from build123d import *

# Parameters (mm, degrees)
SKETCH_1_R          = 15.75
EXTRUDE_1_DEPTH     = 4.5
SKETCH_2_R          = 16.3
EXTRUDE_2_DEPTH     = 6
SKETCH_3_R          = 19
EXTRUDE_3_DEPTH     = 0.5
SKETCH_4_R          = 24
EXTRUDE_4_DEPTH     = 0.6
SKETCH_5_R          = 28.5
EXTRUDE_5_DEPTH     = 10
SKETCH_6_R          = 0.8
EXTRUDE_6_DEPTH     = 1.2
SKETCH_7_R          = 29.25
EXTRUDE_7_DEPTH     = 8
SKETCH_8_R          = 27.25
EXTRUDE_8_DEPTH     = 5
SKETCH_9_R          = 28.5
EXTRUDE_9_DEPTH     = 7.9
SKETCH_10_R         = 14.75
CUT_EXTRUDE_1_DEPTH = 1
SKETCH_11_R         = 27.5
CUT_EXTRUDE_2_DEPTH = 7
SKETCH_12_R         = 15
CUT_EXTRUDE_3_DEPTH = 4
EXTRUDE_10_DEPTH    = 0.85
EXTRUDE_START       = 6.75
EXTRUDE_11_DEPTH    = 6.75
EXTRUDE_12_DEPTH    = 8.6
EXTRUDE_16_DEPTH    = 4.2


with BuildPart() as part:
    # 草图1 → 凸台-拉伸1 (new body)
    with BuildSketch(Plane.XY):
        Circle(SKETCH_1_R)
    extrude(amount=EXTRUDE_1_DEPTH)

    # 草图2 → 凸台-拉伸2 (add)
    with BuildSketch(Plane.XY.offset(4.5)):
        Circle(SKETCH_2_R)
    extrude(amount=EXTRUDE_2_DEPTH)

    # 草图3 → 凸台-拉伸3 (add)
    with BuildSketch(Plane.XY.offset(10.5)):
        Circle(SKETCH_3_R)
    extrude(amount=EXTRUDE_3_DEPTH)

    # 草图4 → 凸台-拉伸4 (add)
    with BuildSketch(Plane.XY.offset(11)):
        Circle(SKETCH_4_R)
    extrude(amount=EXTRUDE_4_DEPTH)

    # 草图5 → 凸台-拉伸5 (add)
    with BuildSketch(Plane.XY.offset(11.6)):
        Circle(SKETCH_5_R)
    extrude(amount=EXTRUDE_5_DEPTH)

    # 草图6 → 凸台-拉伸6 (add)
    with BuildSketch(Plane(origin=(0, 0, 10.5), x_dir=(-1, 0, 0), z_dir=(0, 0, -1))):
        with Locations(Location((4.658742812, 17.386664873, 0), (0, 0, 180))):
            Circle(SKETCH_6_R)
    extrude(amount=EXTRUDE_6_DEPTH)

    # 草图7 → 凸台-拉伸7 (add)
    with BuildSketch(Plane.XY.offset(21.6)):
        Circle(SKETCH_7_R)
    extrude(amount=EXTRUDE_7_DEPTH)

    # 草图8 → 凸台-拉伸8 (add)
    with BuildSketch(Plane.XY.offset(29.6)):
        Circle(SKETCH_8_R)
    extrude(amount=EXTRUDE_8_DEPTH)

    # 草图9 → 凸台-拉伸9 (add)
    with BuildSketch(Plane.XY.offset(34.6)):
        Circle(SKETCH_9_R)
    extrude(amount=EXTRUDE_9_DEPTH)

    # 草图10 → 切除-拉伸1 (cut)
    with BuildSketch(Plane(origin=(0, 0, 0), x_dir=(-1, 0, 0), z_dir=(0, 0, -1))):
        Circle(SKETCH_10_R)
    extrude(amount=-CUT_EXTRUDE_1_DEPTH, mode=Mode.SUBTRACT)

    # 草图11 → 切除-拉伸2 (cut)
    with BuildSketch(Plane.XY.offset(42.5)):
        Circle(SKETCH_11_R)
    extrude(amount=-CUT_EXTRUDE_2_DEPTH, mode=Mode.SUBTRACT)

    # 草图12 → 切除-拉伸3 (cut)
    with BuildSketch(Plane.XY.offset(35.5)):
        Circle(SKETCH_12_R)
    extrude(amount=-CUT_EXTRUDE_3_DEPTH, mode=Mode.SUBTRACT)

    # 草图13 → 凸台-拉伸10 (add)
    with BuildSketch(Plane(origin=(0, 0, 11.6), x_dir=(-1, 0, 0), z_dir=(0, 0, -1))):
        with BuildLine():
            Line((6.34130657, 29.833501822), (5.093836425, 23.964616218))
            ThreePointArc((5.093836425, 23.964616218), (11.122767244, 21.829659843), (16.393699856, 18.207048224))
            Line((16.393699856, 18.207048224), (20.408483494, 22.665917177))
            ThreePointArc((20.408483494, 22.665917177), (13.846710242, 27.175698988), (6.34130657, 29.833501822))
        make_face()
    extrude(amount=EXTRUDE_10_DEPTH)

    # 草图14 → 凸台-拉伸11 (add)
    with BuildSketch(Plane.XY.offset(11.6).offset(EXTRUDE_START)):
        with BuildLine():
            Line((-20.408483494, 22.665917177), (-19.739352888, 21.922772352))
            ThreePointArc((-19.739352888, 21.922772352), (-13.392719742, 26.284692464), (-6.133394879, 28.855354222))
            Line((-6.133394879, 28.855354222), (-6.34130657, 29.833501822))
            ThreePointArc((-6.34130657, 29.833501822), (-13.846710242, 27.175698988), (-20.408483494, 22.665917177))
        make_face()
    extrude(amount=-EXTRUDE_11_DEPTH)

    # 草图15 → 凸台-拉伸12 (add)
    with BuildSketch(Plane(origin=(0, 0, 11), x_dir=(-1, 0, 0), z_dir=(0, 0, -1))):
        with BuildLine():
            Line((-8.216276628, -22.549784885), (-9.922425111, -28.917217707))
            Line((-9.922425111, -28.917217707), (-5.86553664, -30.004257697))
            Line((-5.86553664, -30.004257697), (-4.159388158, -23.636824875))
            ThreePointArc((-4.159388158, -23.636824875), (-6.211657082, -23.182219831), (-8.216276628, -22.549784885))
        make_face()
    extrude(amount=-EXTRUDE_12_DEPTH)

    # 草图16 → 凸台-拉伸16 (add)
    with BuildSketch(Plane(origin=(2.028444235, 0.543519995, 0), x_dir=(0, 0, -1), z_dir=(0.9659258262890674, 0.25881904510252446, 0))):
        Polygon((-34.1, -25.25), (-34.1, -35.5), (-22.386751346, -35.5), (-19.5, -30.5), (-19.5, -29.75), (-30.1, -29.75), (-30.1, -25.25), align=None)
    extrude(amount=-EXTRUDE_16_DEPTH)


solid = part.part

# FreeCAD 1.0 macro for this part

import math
import FreeCAD as App
import Part
import Sketcher
Q = App.Units.Quantity


def add_polygon(sketch, points):
    """Adds a closed chain of lines whose ends are joined by coincident constraints."""
    first, n = sketch.GeometryCount, len(points)
    for a, b in zip(points, points[1:] + points[:1]):
        sketch.addGeometry(Part.LineSegment(App.Vector(*a, 0), App.Vector(*b, 0)), False)
    for i in range(n):
        sketch.addConstraint(Sketcher.Constraint("Coincident", first + i, 2, first + (i + 1) % n, 1))

doc = App.newDocument("Part")
body = doc.addObject("PartDesign::Body", "Body")

# Sketch on XY plane
sketch1 = body.newObject("Sketcher::SketchObject", "Sketch")
sketch1.AttachmentSupport = (doc.getObject("XY_Plane"), [""])
sketch1.MapMode = "FlatFace"
sketch1.addGeometry(Part.Circle(App.Vector(0, 0, 0), App.Vector(0, 0, 1), 16), False)
sketch1.addConstraint(Sketcher.Constraint("Coincident", 0, 3, -1, 1))
sketch1.addConstraint(Sketcher.Constraint("Diameter", 0, 31.5))
pad1 = body.newObject("PartDesign::Pad", "Pad")
pad1.Profile = sketch1
pad1.Length = 4.5

# Sketch on XY plane
sketch2 = body.newObject("Sketcher::SketchObject", "Sketch001")
sketch2.AttachmentSupport = (doc.getObject("XY_Plane"), [""])
sketch2.MapMode = "FlatFace"
sketch2.AttachmentOffset = App.Placement(App.Vector(0, 0, 4.5), App.Rotation())
sketch2.addGeometry(Part.Circle(App.Vector(0, 0, 0), App.Vector(0, 0, 1), 16), False)
sketch2.addConstraint(Sketcher.Constraint("Coincident", 0, 3, -1, 1))
sketch2.addConstraint(Sketcher.Constraint("Diameter", 0, 32.6))
pad2 = body.newObject("PartDesign::Pad", "Pad001")
pad2.Profile = sketch2
pad2.Length = 6

# Sketch on XY plane
sketch3 = body.newObject("Sketcher::SketchObject", "Sketch002")
sketch3.AttachmentSupport = (doc.getObject("XY_Plane"), [""])
sketch3.MapMode = "FlatFace"
sketch3.AttachmentOffset = App.Placement(App.Vector(0, 0, 10.5), App.Rotation())
sketch3.addGeometry(Part.Circle(App.Vector(0, 0, 0), App.Vector(0, 0, 1), 19), False)
sketch3.addConstraint(Sketcher.Constraint("Coincident", 0, 3, -1, 1))
sketch3.addConstraint(Sketcher.Constraint("Diameter", 0, 38.0))
pad3 = body.newObject("PartDesign::Pad", "Pad002")
pad3.Profile = sketch3
pad3.Length = 0.5

# Sketch on XY plane
sketch4 = body.newObject("Sketcher::SketchObject", "Sketch003")
sketch4.AttachmentSupport = (doc.getObject("XY_Plane"), [""])
sketch4.MapMode = "FlatFace"
sketch4.AttachmentOffset = App.Placement(App.Vector(0, 0, 11), App.Rotation())
sketch4.addGeometry(Part.Circle(App.Vector(0, 0, 0), App.Vector(0, 0, 1), 24), False)
sketch4.addConstraint(Sketcher.Constraint("Coincident", 0, 3, -1, 1))
sketch4.addConstraint(Sketcher.Constraint("Diameter", 0, 48.0))
pad4 = body.newObject("PartDesign::Pad", "Pad003")
pad4.Profile = sketch4
pad4.Length = 0.6

# Sketch on XY plane
sketch5 = body.newObject("Sketcher::SketchObject", "Sketch004")
sketch5.AttachmentSupport = (doc.getObject("XY_Plane"), [""])
sketch5.MapMode = "FlatFace"
sketch5.AttachmentOffset = App.Placement(App.Vector(0, 0, 11.6), App.Rotation())
sketch5.addGeometry(Part.Circle(App.Vector(0, 0, 0), App.Vector(0, 0, 1), 28), False)
sketch5.addConstraint(Sketcher.Constraint("Coincident", 0, 3, -1, 1))
sketch5.addConstraint(Sketcher.Constraint("Diameter", 0, 57.0))
pad5 = body.newObject("PartDesign::Pad", "Pad004")
pad5.Profile = sketch5
pad5.Length = 10

# Sketch on XY plane
sketch6 = body.newObject("Sketcher::SketchObject", "Sketch005")
sketch6.AttachmentSupport = (doc.getObject("XY_Plane"), [""])
sketch6.MapMode = "FlatFace"
sketch6.AttachmentOffset = App.Placement(App.Vector(0, 0, 10.5), App.Rotation())
sketch6.addGeometry(Part.Circle(App.Vector(-4.7, 17.4, 0), App.Vector(0, 0, 1), 0.8), False)
sketch6.addConstraint(Sketcher.Constraint("Diameter", 0, 1.6))
sketch6.addConstraint(Sketcher.Constraint("DistanceX", 0, 3, -1, 1, 4.658743))
sketch6.addConstraint(Sketcher.Constraint("DistanceY", -1, 1, 0, 3, 17.386665))
pad6 = body.newObject("PartDesign::Pad", "Pad005")
pad6.Profile = sketch6
pad6.Length = 1.2
pad6.Reversed = True

# Sketch on XY plane
sketch7 = body.newObject("Sketcher::SketchObject", "Sketch006")
sketch7.AttachmentSupport = (doc.getObject("XY_Plane"), [""])
sketch7.MapMode = "FlatFace"
sketch7.AttachmentOffset = App.Placement(App.Vector(0, 0, 21.6), App.Rotation())
sketch7.addGeometry(Part.Circle(App.Vector(0, 0, 0), App.Vector(0, 0, 1), 29), False)
sketch7.addConstraint(Sketcher.Constraint("Coincident", 0, 3, -1, 1))
sketch7.addConstraint(Sketcher.Constraint("Diameter", 0, 58.5))
pad7 = body.newObject("PartDesign::Pad", "Pad006")
pad7.Profile = sketch7
pad7.Length = 8

# Sketch on XY plane
sketch8 = body.newObject("Sketcher::SketchObject", "Sketch007")
sketch8.AttachmentSupport = (doc.getObject("XY_Plane"), [""])
sketch8.MapMode = "FlatFace"
sketch8.AttachmentOffset = App.Placement(App.Vector(0, 0, 29.6), App.Rotation())
sketch8.addGeometry(Part.Circle(App.Vector(0, 0, 0), App.Vector(0, 0, 1), 27), False)
sketch8.addConstraint(Sketcher.Constraint("Coincident", 0, 3, -1, 1))
sketch8.addConstraint(Sketcher.Constraint("Diameter", 0, 54.5))
pad8 = body.newObject("PartDesign::Pad", "Pad007")
pad8.Profile = sketch8
pad8.Length = 5

# Sketch on XY plane
sketch9 = body.newObject("Sketcher::SketchObject", "Sketch008")
sketch9.AttachmentSupport = (doc.getObject("XY_Plane"), [""])
sketch9.MapMode = "FlatFace"
sketch9.AttachmentOffset = App.Placement(App.Vector(0, 0, 34.6), App.Rotation())
sketch9.addGeometry(Part.Circle(App.Vector(0, 0, 0), App.Vector(0, 0, 1), 28), False)
sketch9.addConstraint(Sketcher.Constraint("Coincident", 0, 3, -1, 1))
sketch9.addConstraint(Sketcher.Constraint("Diameter", 0, 57.0))
pad9 = body.newObject("PartDesign::Pad", "Pad008")
pad9.Profile = sketch9
pad9.Length = 7.9

# Sketch on XY plane
sketch10 = body.newObject("Sketcher::SketchObject", "Sketch009")
sketch10.AttachmentSupport = (doc.getObject("XY_Plane"), [""])
sketch10.MapMode = "FlatFace"
sketch10.addGeometry(Part.Circle(App.Vector(0, 0, 0), App.Vector(0, 0, 1), 15), False)
sketch10.addConstraint(Sketcher.Constraint("Coincident", 0, 3, -1, 1))
sketch10.addConstraint(Sketcher.Constraint("Diameter", 0, 29.5))
pocket1 = body.newObject("PartDesign::Pocket", "Pocket")
pocket1.Profile = sketch10
pocket1.Length = 1
pocket1.Reversed = True

# Sketch on XY plane
sketch11 = body.newObject("Sketcher::SketchObject", "Sketch010")
sketch11.AttachmentSupport = (doc.getObject("XY_Plane"), [""])
sketch11.MapMode = "FlatFace"
sketch11.AttachmentOffset = App.Placement(App.Vector(0, 0, 42.5), App.Rotation())
sketch11.addGeometry(Part.Circle(App.Vector(0, 0, 0), App.Vector(0, 0, 1), 28), False)
sketch11.addConstraint(Sketcher.Constraint("Coincident", 0, 3, -1, 1))
sketch11.addConstraint(Sketcher.Constraint("Diameter", 0, 55.0))
pocket2 = body.newObject("PartDesign::Pocket", "Pocket001")
pocket2.Profile = sketch11
pocket2.Length = 7

# Sketch on XY plane
sketch12 = body.newObject("Sketcher::SketchObject", "Sketch011")
sketch12.AttachmentSupport = (doc.getObject("XY_Plane"), [""])
sketch12.MapMode = "FlatFace"
sketch12.AttachmentOffset = App.Placement(App.Vector(0, 0, 35.5), App.Rotation())
sketch12.addGeometry(Part.Circle(App.Vector(0, 0, 0), App.Vector(0, 0, 1), 15), False)
sketch12.addConstraint(Sketcher.Constraint("Coincident", 0, 3, -1, 1))
sketch12.addConstraint(Sketcher.Constraint("Diameter", 0, 30.0))
pocket3 = body.newObject("PartDesign::Pocket", "Pocket002")
pocket3.Profile = sketch12
pocket3.Length = 4

# Sketch on XY plane
sketch13 = body.newObject("Sketcher::SketchObject", "Sketch012")
sketch13.AttachmentSupport = (doc.getObject("XY_Plane"), [""])
sketch13.MapMode = "FlatFace"
sketch13.AttachmentOffset = App.Placement(App.Vector(0, 0, 11.6), App.Rotation())
sketch13.addGeometry(Part.LineSegment(App.Vector(-6, 30, 0), App.Vector(-5, 24, 0)), False)
sketch13.addGeometry(Part.ArcOfCircle(Part.Circle(App.Vector(0, 0, 0), App.Vector(0, 0, 1), 24), math.radians(102), math.radians(132)), False)
sketch13.addGeometry(Part.LineSegment(App.Vector(-16, 18, 0), App.Vector(-20, 23, 0)), False)
sketch13.addGeometry(Part.ArcOfCircle(Part.Circle(App.Vector(0, 0, 0), App.Vector(0, 0, 1), 30), math.radians(102), math.radians(132)), False)
sketch13.addConstraint(Sketcher.Constraint("Coincident", 0, 2, 1, 1))
sketch13.addConstraint(Sketcher.Constraint("Coincident", 1, 2, 2, 1))
sketch13.addConstraint(Sketcher.Constraint("Coincident", 2, 2, 3, 2))
sketch13.addConstraint(Sketcher.Constraint("Coincident", 3, 1, 0, 1))
sketch13.addConstraint(Sketcher.Constraint("Coincident", 1, 3, -1, 1))
sketch13.addConstraint(Sketcher.Constraint("Coincident", 3, 3, -1, 1))
sketch13.addConstraint(Sketcher.Constraint("Radius", 1, 24.5))
sketch13.addConstraint(Sketcher.Constraint("Radius", 3, 30.5))
sketch13.addConstraint(Sketcher.Constraint("Angle", 0, Q("-78 deg")))
sketch13.addConstraint(Sketcher.Constraint("Angle", 2, Q("132 deg")))
sketch13.addConstraint(Sketcher.Constraint("DistanceX", 1, 2, -1, 1, 16.3937))
sketch13.addConstraint(Sketcher.Constraint("DistanceY", -1, 1, 3, 1, 29.833502))
pad10 = body.newObject("PartDesign::Pad", "Pad009")
pad10.Profile = sketch13
pad10.Length = 0.85
pad10.Reversed = True

# Sketch on XY plane
sketch14 = body.newObject("Sketcher::SketchObject", "Sketch013")
sketch14.AttachmentSupport = (doc.getObject("XY_Plane"), [""])
sketch14.MapMode = "FlatFace"
sketch14.AttachmentOffset = App.Placement(App.Vector(0, 0, 18.35), App.Rotation())
sketch14.addGeometry(Part.LineSegment(App.Vector(-20.4, 22.7, 0), App.Vector(-19.7, 21.9, 0)), False)
sketch14.addGeometry(Part.ArcOfCircle(Part.Circle(App.Vector(0, 0, 0), App.Vector(0, 0, 1), 29.5), math.radians(102), math.radians(132)), False)
sketch14.addGeometry(Part.LineSegment(App.Vector(-6.1, 28.9, 0), App.Vector(-6.3, 29.8, 0)), False)
sketch14.addGeometry(Part.ArcOfCircle(Part.Circle(App.Vector(0, 0, 0), App.Vector(0, 0, 1), 30.5), math.radians(102), math.radians(132)), False)
sketch14.addConstraint(Sketcher.Constraint("Coincident", 0, 2, 1, 2))
sketch14.addConstraint(Sketcher.Constraint("Coincident", 1, 1, 2, 1))
sketch14.addConstraint(Sketcher.Constraint("Coincident", 2, 2, 3, 1))
sketch14.addConstraint(Sketcher.Constraint("Coincident", 3, 2, 0, 1))
sketch14.addConstraint(Sketcher.Constraint("Coincident", 1, 3, -1, 1))
sketch14.addConstraint(Sketcher.Constraint("Coincident", 3, 3, -1, 1))
sketch14.addConstraint(Sketcher.Constraint("Radius", 1, 29.5))
sketch14.addConstraint(Sketcher.Constraint("Radius", 3, 30.5))
sketch14.addConstraint(Sketcher.Constraint("Angle", 0, Q("-48 deg")))
sketch14.addConstraint(Sketcher.Constraint("Angle", 2, Q("102 deg")))
sketch14.addConstraint(Sketcher.Constraint("DistanceY", -1, 1, 2, 2, 29.833502))
sketch14.addConstraint(Sketcher.Constraint("DistanceX", 0, 2, 1, 1, 13.605958))
pad11 = body.newObject("PartDesign::Pad", "Pad010")
pad11.Profile = sketch14
pad11.Length = 6.75
pad11.Reversed = True

# Sketch on XY plane
sketch15 = body.newObject("Sketcher::SketchObject", "Sketch014")
sketch15.AttachmentSupport = (doc.getObject("XY_Plane"), [""])
sketch15.MapMode = "FlatFace"
sketch15.AttachmentOffset = App.Placement(App.Vector(0, 0, 11), App.Rotation())
sketch15.addGeometry(Part.LineSegment(App.Vector(8.2, -22.5, 0), App.Vector(9.9, -28.9, 0)), False)
sketch15.addGeometry(Part.LineSegment(App.Vector(9.9, -28.9, 0), App.Vector(5.9, -30, 0)), False)
sketch15.addGeometry(Part.LineSegment(App.Vector(5.9, -30, 0), App.Vector(4.2, -23.6, 0)), False)
sketch15.addGeometry(Part.ArcOfCircle(Part.Circle(App.Vector(0, 0, 0), App.Vector(0, 0, 1), 24), math.radians(-80.02), math.radians(-69.98)), False)
sketch15.addConstraint(Sketcher.Constraint("Coincident", 0, 2, 1, 1))
sketch15.addConstraint(Sketcher.Constraint("Coincident", 1, 2, 2, 1))
sketch15.addConstraint(Sketcher.Constraint("Coincident", 2, 2, 3, 1))
sketch15.addConstraint(Sketcher.Constraint("Coincident", 3, 2, 0, 1))
sketch15.addConstraint(Sketcher.Constraint("Coincident", 3, 3, -1, 1))
sketch15.addConstraint(Sketcher.Constraint("Perpendicular", 0, 1))
sketch15.addConstraint(Sketcher.Constraint("Perpendicular", 1, 2))
sketch15.addConstraint(Sketcher.Constraint("Equal", 0, 2))
sketch15.addConstraint(Sketcher.Constraint("Radius", 3, 24.0))
sketch15.addConstraint(Sketcher.Constraint("Angle", 0, Q("-75 deg")))
sketch15.addConstraint(Sketcher.Constraint("Distance", 1, 4.2))
sketch15.addConstraint(Sketcher.Constraint("Distance", 0, 6.592052))
pad12 = body.newObject("PartDesign::Pad", "Pad011")
pad12.Profile = sketch15
pad12.Length = 8.6

# Sketch on an angled plane
sketch16 = body.newObject("Sketcher::SketchObject", "Sketch015")
sketch16.Placement = App.Placement(App.Vector(2.028444, 0.54352, 0), App.Rotation(App.Vector(0, 0, -1), App.Vector(-0.258819045, 0.965925826, 0), App.Vector(0.965925826, 0.258819045, 0), "ZXY"))
add_polygon(sketch16, [(-34.1, -25.2), (-34.1, -35.5), (-22.4, -35.5), (-19.5, -30.5), (-19.5, -29.7), (-30.1, -29.7), (-30.1, -25.2)])  # lines 0-6
sketch16.addConstraint(Sketcher.Constraint("Vertical", 0))
sketch16.addConstraint(Sketcher.Constraint("Horizontal", 1))
sketch16.addConstraint(Sketcher.Constraint("Vertical", 3))
sketch16.addConstraint(Sketcher.Constraint("Horizontal", 4))
sketch16.addConstraint(Sketcher.Constraint("Vertical", 5))
sketch16.addConstraint(Sketcher.Constraint("Horizontal", 6))
sketch16.addConstraint(Sketcher.Constraint("DistanceX", 6, 2, 6, 1, 4.0))
sketch16.addConstraint(Sketcher.Constraint("Angle", 2, Q("60 deg")))
sketch16.addConstraint(Sketcher.Constraint("DistanceX", 4, 2, 4, 1, 10.6))
sketch16.addConstraint(Sketcher.Constraint("DistanceY", 5, 1, 5, 2, 4.5))
sketch16.addConstraint(Sketcher.Constraint("DistanceY", 1, 2, 2, 2, 5.0))
sketch16.addConstraint(Sketcher.Constraint("DistanceY", 0, 2, 0, 1, 10.25))
sketch16.addConstraint(Sketcher.Constraint("DistanceX", 0, 2, -1, 1, 34.1))
sketch16.addConstraint(Sketcher.Constraint("DistanceY", 0, 2, -1, 1, 35.5))
pad13 = body.newObject("PartDesign::Pad", "Pad012")
pad13.Profile = sketch16
pad13.Length = 4.2
pad13.Reversed = True

doc.recompute()
